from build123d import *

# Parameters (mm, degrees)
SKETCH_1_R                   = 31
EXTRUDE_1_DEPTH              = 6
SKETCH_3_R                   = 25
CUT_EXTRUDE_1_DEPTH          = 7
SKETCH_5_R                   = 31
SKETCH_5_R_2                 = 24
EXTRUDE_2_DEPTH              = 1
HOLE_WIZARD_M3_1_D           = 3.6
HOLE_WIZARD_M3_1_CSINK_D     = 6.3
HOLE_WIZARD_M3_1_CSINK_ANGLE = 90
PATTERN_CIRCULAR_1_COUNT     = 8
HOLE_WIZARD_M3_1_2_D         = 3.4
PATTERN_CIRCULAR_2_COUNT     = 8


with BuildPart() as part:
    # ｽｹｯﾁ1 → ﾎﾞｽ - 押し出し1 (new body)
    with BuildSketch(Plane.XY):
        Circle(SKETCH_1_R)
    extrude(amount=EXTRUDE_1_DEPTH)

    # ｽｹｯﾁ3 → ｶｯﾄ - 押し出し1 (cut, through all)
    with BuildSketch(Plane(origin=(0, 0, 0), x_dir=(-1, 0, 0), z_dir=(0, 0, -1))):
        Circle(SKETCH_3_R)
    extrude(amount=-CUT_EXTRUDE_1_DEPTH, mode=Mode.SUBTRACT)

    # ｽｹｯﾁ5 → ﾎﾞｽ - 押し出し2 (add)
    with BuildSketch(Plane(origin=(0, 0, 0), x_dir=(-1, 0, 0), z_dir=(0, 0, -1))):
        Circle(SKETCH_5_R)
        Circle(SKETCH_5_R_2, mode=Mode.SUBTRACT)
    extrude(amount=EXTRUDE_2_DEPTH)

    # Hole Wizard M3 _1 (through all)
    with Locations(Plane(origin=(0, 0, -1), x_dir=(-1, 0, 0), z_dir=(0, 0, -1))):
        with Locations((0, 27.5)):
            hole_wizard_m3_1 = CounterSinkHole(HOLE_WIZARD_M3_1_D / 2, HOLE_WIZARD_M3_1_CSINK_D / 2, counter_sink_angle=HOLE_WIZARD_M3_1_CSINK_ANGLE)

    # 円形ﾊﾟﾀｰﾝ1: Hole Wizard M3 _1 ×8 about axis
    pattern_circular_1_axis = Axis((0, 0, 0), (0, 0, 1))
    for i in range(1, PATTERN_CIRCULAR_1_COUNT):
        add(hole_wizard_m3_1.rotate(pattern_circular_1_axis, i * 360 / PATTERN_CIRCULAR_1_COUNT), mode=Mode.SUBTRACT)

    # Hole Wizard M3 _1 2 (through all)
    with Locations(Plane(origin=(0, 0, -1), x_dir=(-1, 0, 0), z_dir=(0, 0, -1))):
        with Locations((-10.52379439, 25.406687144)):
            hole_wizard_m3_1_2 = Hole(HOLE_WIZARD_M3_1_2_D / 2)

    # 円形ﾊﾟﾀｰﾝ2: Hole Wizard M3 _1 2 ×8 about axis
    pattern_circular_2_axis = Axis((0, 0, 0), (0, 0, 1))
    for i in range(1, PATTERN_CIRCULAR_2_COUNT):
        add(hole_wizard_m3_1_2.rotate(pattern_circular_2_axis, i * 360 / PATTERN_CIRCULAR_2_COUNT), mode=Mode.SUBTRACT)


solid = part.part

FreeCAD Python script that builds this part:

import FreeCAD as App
import Part
import Sketcher
Q = App.Units.Quantity

doc = App.newDocument("Part")
body = doc.addObject("PartDesign::Body", "Body")

# Sketch on XY plane
sketch1 = body.newObject("Sketcher::SketchObject", "Sketch")
sketch1.AttachmentSupport = (doc.getObject("XY_Plane"), [""])
sketch1.MapMode = "FlatFace"
sketch1.addGeometry(Part.Circle(App.Vector(0, 0, 0), App.Vector(0, 0, 1), 31), False)
sketch1.addConstraint([
    Sketcher.Constraint("Coincident", 0, 3, -1, 1),
    Sketcher.Constraint("Diameter", 0, Q("62 mm")),
])
pad1 = body.newObject("PartDesign::Pad", "Pad")
pad1.Profile = sketch1
pad1.Length = 6

# Sketch on XY plane
sketch2 = body.newObject("Sketcher::SketchObject", "Sketch001")
sketch2.AttachmentSupport = (doc.getObject("XY_Plane"), [""])
sketch2.MapMode = "FlatFace"
sketch2.addGeometry(Part.Circle(App.Vector(0, 0, 0), App.Vector(0, 0, 1), 25), False)
sketch2.addConstraint([
    Sketcher.Constraint("Coincident", 0, 3, -1, 1),
    Sketcher.Constraint("Diameter", 0, Q("50 mm")),
])
pocket1 = body.newObject("PartDesign::Pocket", "Pocket")
pocket1.Profile = sketch2
pocket1.Type = "ThroughAll"
pocket1.Reversed = True

# Sketch on XY plane
sketch3 = body.newObject("Sketcher::SketchObject", "Sketch002")
sketch3.AttachmentSupport = (doc.getObject("XY_Plane"), [""])
sketch3.MapMode = "FlatFace"
sketch3.addGeometry([
    Part.Circle(App.Vector(0, 0, 0), App.Vector(0, 0, 1), 31),
    Part.Circle(App.Vector(0, 0, 0), App.Vector(0, 0, 1), 24),
], False)
sketch3.addConstraint([
    Sketcher.Constraint("Coincident", 0, 3, -1, 1),
    Sketcher.Constraint("Coincident", 1, 3, -1, 1),
    Sketcher.Constraint("Diameter", 0, Q("62 mm")),
    Sketcher.Constraint("Diameter", 1, Q("48 mm")),
])
pad2 = body.newObject("PartDesign::Pad", "Pad001")
pad2.Profile = sketch3
pad2.Length = 1
pad2.Reversed = True

# Sketch on XY plane
sketch4 = body.newObject("Sketcher::SketchObject", "Sketch003")
sketch4.AttachmentSupport = (doc.getObject("XY_Plane"), [""])
sketch4.MapMode = "FlatFace"
sketch4.AttachmentOffset = App.Placement(App.Vector(0, 0, -1), App.Rotation())
sketch4.addGeometry(Part.Circle(App.Vector(0, 27.5, 0), App.Vector(0, 0, 1), 1.8), False)
sketch4.addConstraint([
    Sketcher.Constraint("PointOnObject", 0, 3, -2),
    Sketcher.Constraint("Diameter", 0, Q("3.6 mm")),
    Sketcher.Constraint("DistanceY", -1, 1, 0, 3, Q("27.5 mm")),
])
doc.recompute()
hole = body.newObject("PartDesign::Hole", "Hole")
hole.Profile = sketch4
hole.ThreadType = "None"
hole.Diameter = 3.6
hole.DepthType = "ThroughAll"
hole.HoleCutType = "Countersink"
hole.HoleCutDiameter = 6.3
hole.HoleCutCountersinkAngle = 90
hole.Reversed = True
doc.recompute()

polarpattern = body.newObject("PartDesign::PolarPattern", "PolarPattern")
polarpattern.Originals = [hole]
polarpattern.Axis = (doc.getObject("Z_Axis"), [""])
polarpattern.Angle = 360
polarpattern.Occurrences = 8
body.Tip = polarpattern

# Sketch on XY plane
sketch5 = body.newObject("Sketcher::SketchObject", "Sketch004")
sketch5.AttachmentSupport = (doc.getObject("XY_Plane"), [""])
sketch5.MapMode = "FlatFace"
sketch5.AttachmentOffset = App.Placement(App.Vector(0, 0, -1), App.Rotation())
sketch5.addGeometry(Part.Circle(App.Vector(10.5, 25.4, 0), App.Vector(0, 0, 1), 1.7), False)
sketch5.addConstraint([
    Sketcher.Constraint("Diameter", 0, Q("3.4 mm")),
    Sketcher.Constraint("DistanceX", -1, 1, 0, 3, Q("10.523794 mm")),
    Sketcher.Constraint("DistanceY", -1, 1, 0, 3, Q("25.406687 mm")),
])
doc.recompute()
hole2 = body.newObject("PartDesign::Hole", "Hole001")
hole2.Profile = sketch5
hole2.ThreadType = "None"
hole2.Diameter = 3.4
hole2.DepthType = "ThroughAll"
hole2.Reversed = True
doc.recompute()

polarpattern2 = body.newObject("PartDesign::PolarPattern", "PolarPattern001")
polarpattern2.Originals = [hole2]
polarpattern2.Axis = (doc.getObject("Z_Axis"), [""])
polarpattern2.Angle = 360
polarpattern2.Occurrences = 8
body.Tip = polarpattern2

doc.recompute()
